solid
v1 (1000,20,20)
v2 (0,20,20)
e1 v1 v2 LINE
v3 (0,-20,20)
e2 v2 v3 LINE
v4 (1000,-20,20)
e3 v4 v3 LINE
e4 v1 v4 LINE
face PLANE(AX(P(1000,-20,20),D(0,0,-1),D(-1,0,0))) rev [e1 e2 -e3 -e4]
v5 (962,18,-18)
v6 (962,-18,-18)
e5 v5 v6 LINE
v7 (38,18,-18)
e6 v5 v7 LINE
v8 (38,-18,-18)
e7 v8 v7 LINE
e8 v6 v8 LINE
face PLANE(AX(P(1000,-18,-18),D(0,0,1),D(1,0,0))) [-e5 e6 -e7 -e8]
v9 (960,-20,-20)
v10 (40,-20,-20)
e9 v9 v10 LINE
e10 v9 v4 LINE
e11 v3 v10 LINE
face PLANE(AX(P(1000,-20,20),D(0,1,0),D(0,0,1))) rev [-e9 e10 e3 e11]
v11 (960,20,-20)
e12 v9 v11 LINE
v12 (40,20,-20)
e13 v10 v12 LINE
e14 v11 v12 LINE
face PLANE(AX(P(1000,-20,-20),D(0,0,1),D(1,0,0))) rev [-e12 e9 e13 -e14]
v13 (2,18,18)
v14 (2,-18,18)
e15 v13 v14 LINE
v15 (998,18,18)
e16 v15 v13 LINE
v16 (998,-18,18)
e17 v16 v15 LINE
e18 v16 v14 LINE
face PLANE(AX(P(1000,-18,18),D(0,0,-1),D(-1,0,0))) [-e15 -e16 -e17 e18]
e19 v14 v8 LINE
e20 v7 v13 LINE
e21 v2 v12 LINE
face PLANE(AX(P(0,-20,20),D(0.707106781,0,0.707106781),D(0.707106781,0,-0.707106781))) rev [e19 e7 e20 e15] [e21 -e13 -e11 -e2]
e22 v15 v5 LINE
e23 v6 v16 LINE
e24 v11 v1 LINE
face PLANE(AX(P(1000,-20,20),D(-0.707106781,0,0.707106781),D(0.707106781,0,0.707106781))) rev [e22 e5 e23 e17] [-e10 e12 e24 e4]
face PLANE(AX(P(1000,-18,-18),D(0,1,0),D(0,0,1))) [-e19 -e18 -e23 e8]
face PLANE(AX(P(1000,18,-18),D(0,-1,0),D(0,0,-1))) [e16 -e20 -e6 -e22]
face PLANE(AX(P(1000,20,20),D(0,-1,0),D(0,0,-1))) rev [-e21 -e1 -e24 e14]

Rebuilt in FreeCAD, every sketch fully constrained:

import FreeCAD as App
import Part
import Sketcher

V = App.Vector
Q = App.Units.Quantity

doc = App.newDocument("Part")
body = doc.addObject("PartDesign::Body", "Body")

# Sketch on YZ plane
sketch1 = doc.addObject("Sketcher::SketchObject", "Sketch")
body.addObject(sketch1)
sketch1.AttachmentSupport = (doc.YZ_Plane, [""])
sketch1.MapMode = "FlatFace"
sketch1.addGeometry([
    Part.LineSegment(V(20, 20, 0), V(-20, 20, 0)),  # 0
    Part.LineSegment(V(-20, 20, 0), V(-20, -20, 0)),  # 1
    Part.LineSegment(V(-20, -20, 0), V(20, -20, 0)),  # 2
    Part.LineSegment(V(20, -20, 0), V(20, 20, 0)),  # 3
    Part.LineSegment(V(-18, -18, 0), V(-18, 18, 0)),  # 4
    Part.LineSegment(V(-18, 18, 0), V(18, 18, 0)),  # 5
    Part.LineSegment(V(18, 18, 0), V(18, -18, 0)),  # 6
    Part.LineSegment(V(18, -18, 0), V(-18, -18, 0)),  # 7
], False)
sketch1.addConstraint([
    Sketcher.Constraint("Coincident", 0, 2, 1, 1),
    Sketcher.Constraint("Coincident", 1, 2, 2, 1),
    Sketcher.Constraint("Coincident", 2, 2, 3, 1),
    Sketcher.Constraint("Coincident", 3, 2, 0, 1),
    Sketcher.Constraint("Coincident", 4, 2, 5, 1),
    Sketcher.Constraint("Coincident", 5, 2, 6, 1),
    Sketcher.Constraint("Coincident", 6, 2, 7, 1),
    Sketcher.Constraint("Coincident", 7, 2, 4, 1),
    Sketcher.Constraint("Horizontal", 0),
    Sketcher.Constraint("Vertical", 1),
    Sketcher.Constraint("Horizontal", 2),
    Sketcher.Constraint("Vertical", 3),
    Sketcher.Constraint("Vertical", 4),
    Sketcher.Constraint("Horizontal", 5),
    Sketcher.Constraint("Vertical", 6),
    Sketcher.Constraint("Horizontal", 7),
    Sketcher.Constraint("Symmetric", 0, 2, 2, 2, -1, 1),
    Sketcher.Constraint("Symmetric", 4, 2, 6, 2, -1, 1),
    Sketcher.Constraint("Equal", 2, 1),
    Sketcher.Constraint("Equal", 7, 4),
    Sketcher.Constraint("DistanceX", 0, 2, 0, 1, Q("40 mm")),
    Sketcher.Constraint("DistanceX", 5, 1, 5, 2, Q("36 mm")),
])
pad1 = doc.addObject("PartDesign::Pad", "Pad")
body.addObject(pad1)
pad1.Profile = sketch1
pad1.Length = 1000

# Sketch on XZ plane
sketch2 = doc.addObject("Sketcher::SketchObject", "Sketch001")
body.addObject(sketch2)
sketch2.AttachmentSupport = (doc.XZ_Plane, [""])
sketch2.MapMode = "FlatFace"
sketch2.AttachmentOffset = App.Placement(V(0, 0, -20), App.Rotation())
sketch2.addGeometry([
    Part.LineSegment(V(0, 20, 0), V(40, -20, 0)),  # 0
    Part.LineSegment(V(40, -20, 0), V(0, -20, 0)),  # 1
    Part.LineSegment(V(0, -20, 0), V(0, 20, 0)),  # 2
    Part.LineSegment(V(1000, 20, 0), V(1000, -20, 0)),  # 3
    Part.LineSegment(V(1000, -20, 0), V(960, -20, 0)),  # 4
    Part.LineSegment(V(960, -20, 0), V(1000, 20, 0)),  # 5
], False)
sketch2.addConstraint([
    Sketcher.Constraint("Coincident", 0, 2, 1, 1),
    Sketcher.Constraint("Coincident", 1, 2, 2, 1),
    Sketcher.Constraint("Coincident", 2, 2, 0, 1),
    Sketcher.Constraint("Coincident", 3, 2, 4, 1),
    Sketcher.Constraint("Coincident", 4, 2, 5, 1),
    Sketcher.Constraint("Coincident", 5, 2, 3, 1),
    Sketcher.Constraint("Horizontal", 1),
    Sketcher.Constraint("Vertical", 2),
    Sketcher.Constraint("Vertical", 3),
    Sketcher.Constraint("Horizontal", 4),
    Sketcher.Constraint("Symmetric", 1, 2, 2, 2, -1, 1),
    Sketcher.Constraint("Perpendicular", 0, 5),
    Sketcher.Constraint("Horizontal", 1, 2, 3, 2),
    Sketcher.Constraint("Horizontal", 2, 2, 5, 2),
    Sketcher.Constraint("Equal", 1, 4),
    Sketcher.Constraint("DistanceX", 1, 2, 1, 1, Q("40 mm")),
    Sketcher.Constraint("DistanceX", -1, 1, 3, 2, Q("1000 mm")),
])
pocket1 = doc.addObject("PartDesign::Pocket", "Pocket")
body.addObject(pocket1)
pocket1.Profile = sketch2
pocket1.Type = "ThroughAll"
pocket1.Reversed = True

doc.recompute()
